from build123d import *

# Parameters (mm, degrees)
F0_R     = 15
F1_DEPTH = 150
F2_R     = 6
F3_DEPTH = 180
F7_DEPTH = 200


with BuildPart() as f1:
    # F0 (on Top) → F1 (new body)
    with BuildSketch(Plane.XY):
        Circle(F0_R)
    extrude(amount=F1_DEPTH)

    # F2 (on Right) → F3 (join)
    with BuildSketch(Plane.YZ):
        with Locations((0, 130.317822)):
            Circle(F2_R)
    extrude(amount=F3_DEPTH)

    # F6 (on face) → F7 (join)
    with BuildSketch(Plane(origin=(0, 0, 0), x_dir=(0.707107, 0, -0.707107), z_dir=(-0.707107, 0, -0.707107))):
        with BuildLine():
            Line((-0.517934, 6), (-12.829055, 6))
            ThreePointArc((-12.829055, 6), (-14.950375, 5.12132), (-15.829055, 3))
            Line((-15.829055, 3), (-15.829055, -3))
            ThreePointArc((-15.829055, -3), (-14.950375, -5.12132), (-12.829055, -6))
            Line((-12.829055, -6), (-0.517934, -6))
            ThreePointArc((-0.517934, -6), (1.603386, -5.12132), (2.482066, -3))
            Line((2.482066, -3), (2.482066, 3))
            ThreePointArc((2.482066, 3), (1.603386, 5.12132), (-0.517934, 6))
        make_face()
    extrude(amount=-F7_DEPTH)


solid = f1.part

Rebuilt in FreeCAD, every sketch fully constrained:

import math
import FreeCAD as App
import Part
import Sketcher

doc = App.newDocument("Part")
body = doc.addObject("PartDesign::Body", "Body")

# Sketch on XY plane
sketch1 = body.newObject("Sketcher::SketchObject", "Sketch")
sketch1.AttachmentSupport = (doc.getObject("XY_Plane"), [""])
sketch1.MapMode = "FlatFace"
sketch1.addGeometry(Part.Circle(App.Vector(0, 0, 0), App.Vector(0, 0, 1), 15), False)
sketch1.addConstraint(Sketcher.Constraint("Coincident", 0, 3, -1, 1))
sketch1.addConstraint(Sketcher.Constraint("Diameter", 0, 30.0))
pad1 = body.newObject("PartDesign::Pad", "Pad")
pad1.Profile = sketch1
pad1.Length = 150

# Sketch on YZ plane
sketch2 = body.newObject("Sketcher::SketchObject", "Sketch001")
sketch2.AttachmentSupport = (doc.getObject("YZ_Plane"), [""])
sketch2.MapMode = "FlatFace"
sketch2.addGeometry(Part.Circle(App.Vector(0, 130, 0), App.Vector(0, 0, 1), 6), False)
sketch2.addConstraint(Sketcher.Constraint("PointOnObject", 0, 3, -2))
sketch2.addConstraint(Sketcher.Constraint("Diameter", 0, 12.0))
sketch2.addConstraint(Sketcher.Constraint("DistanceY", -1, 1, 0, 3, 130.317822))
pad2 = body.newObject("PartDesign::Pad", "Pad001")
pad2.Profile = sketch2
pad2.Length = 180

# Sketch on an angled plane
sketch3 = body.newObject("Sketcher::SketchObject", "Sketch002")
sketch3.Placement = App.Placement(App.Vector(0, 0, 0), App.Rotation(App.Vector(0.707106781, 0, -0.707106781), App.Vector(0, -0.999999999, 0), App.Vector(-0.707106781, 0, -0.707106781), "ZXY"))
sketch3.addGeometry(Part.LineSegment(App.Vector(-0.5, 6, 0), App.Vector(-12.8, 6, 0)), False)
sketch3.addGeometry(Part.ArcOfCircle(Part.Circle(App.Vector(-12.8, 3, 0), App.Vector(0, 0, 1), 3), math.radians(90), math.radians(180)), False)
sketch3.addGeometry(Part.LineSegment(App.Vector(-15.8, 3, 0), App.Vector(-15.8, -3, 0)), False)
sketch3.addGeometry(Part.ArcOfCircle(Part.Circle(App.Vector(-12.8, -3, 0), App.Vector(0, 0, 1), 3), math.radians(-180), math.radians(-90)), False)
sketch3.addGeometry(Part.LineSegment(App.Vector(-12.8, -6, 0), App.Vector(-0.5, -6, 0)), False)
sketch3.addGeometry(Part.ArcOfCircle(Part.Circle(App.Vector(-0.5, -3, 0), App.Vector(0, 0, 1), 3), math.radians(-90), math.radians(0)), False)
sketch3.addGeometry(Part.LineSegment(App.Vector(2.5, -3, 0), App.Vector(2.5, 3, 0)), False)
sketch3.addGeometry(Part.ArcOfCircle(Part.Circle(App.Vector(-0.5, 3, 0), App.Vector(0, 0, 1), 3), math.radians(0), math.radians(90)), False)
sketch3.addConstraint(Sketcher.Constraint("Tangent", 0, 2, 1, 1))
sketch3.addConstraint(Sketcher.Constraint("Tangent", 1, 2, 2, 1))
sketch3.addConstraint(Sketcher.Constraint("Tangent", 2, 2, 3, 1))
sketch3.addConstraint(Sketcher.Constraint("Tangent", 3, 2, 4, 1))
sketch3.addConstraint(Sketcher.Constraint("Tangent", 4, 2, 5, 1))
sketch3.addConstraint(Sketcher.Constraint("Tangent", 5, 2, 6, 1))
sketch3.addConstraint(Sketcher.Constraint("Tangent", 6, 2, 7, 1))
sketch3.addConstraint(Sketcher.Constraint("Tangent", 7, 2, 0, 1))
sketch3.addConstraint(Sketcher.Constraint("Horizontal", 0))
sketch3.addConstraint(Sketcher.Constraint("Vertical", 2))
sketch3.addConstraint(Sketcher.Constraint("Horizontal", 4))
sketch3.addConstraint(Sketcher.Constraint("Vertical", 6))
sketch3.addConstraint(Sketcher.Constraint("Equal", 1, 3))
sketch3.addConstraint(Sketcher.Constraint("Equal", 3, 5))
sketch3.addConstraint(Sketcher.Constraint("Equal", 5, 7))
sketch3.addConstraint(Sketcher.Constraint("Radius", 1, 3.000001))
sketch3.addConstraint(Sketcher.Constraint("DistanceY", 2, 2, 2, 1, 6.0))
sketch3.addConstraint(Sketcher.Constraint("DistanceY", -1, 1, 1, 3, 2.999999))
sketch3.addConstraint(Sketcher.Constraint("DistanceX", 0, 2, 0, 1, 12.311121))
sketch3.addConstraint(Sketcher.Constraint("DistanceX", 1, 3, -1, 1, 12.829054))
pad3 = body.newObject("PartDesign::Pad", "Pad002")
pad3.Profile = sketch3
pad3.Length = 200
pad3.Reversed = True

doc.recompute()
